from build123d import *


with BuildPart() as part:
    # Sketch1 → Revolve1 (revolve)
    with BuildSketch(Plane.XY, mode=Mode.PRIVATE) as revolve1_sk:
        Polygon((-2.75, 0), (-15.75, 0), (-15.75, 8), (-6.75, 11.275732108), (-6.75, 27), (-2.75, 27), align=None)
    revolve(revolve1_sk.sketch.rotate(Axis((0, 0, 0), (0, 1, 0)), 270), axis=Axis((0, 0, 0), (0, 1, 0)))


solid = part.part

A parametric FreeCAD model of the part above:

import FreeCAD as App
import Part
import Sketcher
from FreeCAD import Vector
Q = App.Units.Quantity

doc = App.newDocument("Part")
body = doc.addObject("PartDesign::Body", "Body")

# Sketch on XY plane
sketch1 = body.newObject("Sketcher::SketchObject", "Sketch")
sketch1.AttachmentSupport = (doc.getObject("XY_Plane"), [""])
sketch1.MapMode = "FlatFace"
sketch1.addGeometry([
    Part.LineSegment(Vector(-15.8, 0, 0), Vector(-2.8, 0, 0)),  # 0
    Part.LineSegment(Vector(-2.8, 0, 0), Vector(-2.8, 27, 0)),  # 1
    Part.LineSegment(Vector(-2.8, 27, 0), Vector(-6.8, 27, 0)),  # 2
    Part.LineSegment(Vector(-6.8, 27, 0), Vector(-6.8, 11.3, 0)),  # 3
    Part.LineSegment(Vector(-6.8, 11.3, 0), Vector(-15.8, 8, 0)),  # 4
    Part.LineSegment(Vector(-15.8, 8, 0), Vector(-15.8, 0, 0)),  # 5
], False)
sketch1.addConstraint([
    Sketcher.Constraint("Coincident", 0, 2, 1, 1),
    Sketcher.Constraint("Coincident", 1, 2, 2, 1),
    Sketcher.Constraint("Coincident", 2, 2, 3, 1),
    Sketcher.Constraint("Coincident", 3, 2, 4, 1),
    Sketcher.Constraint("Coincident", 4, 2, 5, 1),
    Sketcher.Constraint("Coincident", 5, 2, 0, 1),
    Sketcher.Constraint("Horizontal", 0),
    Sketcher.Constraint("Vertical", 1),
    Sketcher.Constraint("Horizontal", 2),
    Sketcher.Constraint("Vertical", 3),
    Sketcher.Constraint("Vertical", 5),
    Sketcher.Constraint("PointOnObject", 0, 2, -1),
    Sketcher.Constraint("DistanceX", 0, 1, 0, 2, Q("13 mm")),
    Sketcher.Constraint("DistanceX", 2, 2, 2, 1, Q("4 mm")),
    Sketcher.Constraint("DistanceY", 1, 1, 1, 2, Q("27 mm")),
    Sketcher.Constraint("DistanceY", 5, 2, 5, 1, Q("8 mm")),
    Sketcher.Constraint("Angle", 4, Q("-160 deg")),
    Sketcher.Constraint("DistanceX", 0, 2, -1, 1, Q("2.75 mm")),
])
revolution = body.newObject("PartDesign::Revolution", "Revolution")
revolution.Profile = sketch1
revolution.ReferenceAxis = (sketch1, ["V_Axis"])
revolution.Angle = 360

doc.recompute()
